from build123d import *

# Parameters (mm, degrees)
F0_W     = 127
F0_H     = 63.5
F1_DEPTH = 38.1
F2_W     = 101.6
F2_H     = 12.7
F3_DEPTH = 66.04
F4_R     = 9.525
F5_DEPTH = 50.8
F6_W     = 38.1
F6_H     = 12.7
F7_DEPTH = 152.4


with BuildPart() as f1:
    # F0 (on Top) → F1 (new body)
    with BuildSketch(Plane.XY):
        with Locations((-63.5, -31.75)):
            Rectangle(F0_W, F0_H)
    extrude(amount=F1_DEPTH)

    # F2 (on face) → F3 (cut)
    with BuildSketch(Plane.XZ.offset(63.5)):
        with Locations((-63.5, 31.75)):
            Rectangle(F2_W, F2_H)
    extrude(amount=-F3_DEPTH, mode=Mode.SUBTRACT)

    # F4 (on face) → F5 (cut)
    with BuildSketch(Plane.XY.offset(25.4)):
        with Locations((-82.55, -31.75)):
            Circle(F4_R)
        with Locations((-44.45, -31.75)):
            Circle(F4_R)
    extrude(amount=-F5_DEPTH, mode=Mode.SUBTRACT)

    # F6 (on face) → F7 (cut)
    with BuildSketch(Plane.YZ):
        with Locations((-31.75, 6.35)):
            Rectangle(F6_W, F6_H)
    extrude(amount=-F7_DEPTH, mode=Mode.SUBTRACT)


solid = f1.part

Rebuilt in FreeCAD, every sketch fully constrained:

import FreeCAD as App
import Part
import Sketcher
Q = App.Units.Quantity


def add_polygon(sketch, points):
    """Adds a closed chain of lines whose ends are joined by coincident constraints."""
    first, n = sketch.GeometryCount, len(points)
    for a, b in zip(points, points[1:] + points[:1]):
        sketch.addGeometry(Part.LineSegment(App.Vector(*a, 0), App.Vector(*b, 0)), False)
    for i in range(n):
        sketch.addConstraint(Sketcher.Constraint("Coincident", first + i, 2, first + (i + 1) % n, 1))

doc = App.newDocument("Part")
body = doc.addObject("PartDesign::Body", "Body")

# Sketch on XY plane
sketch1 = body.newObject("Sketcher::SketchObject", "Sketch")
sketch1.AttachmentSupport = (doc.getObject("XY_Plane"), [""])
sketch1.MapMode = "FlatFace"
add_polygon(sketch1, [(-127, 0), (-127, -64), (0, -64), (0, 0)])  # lines 0-3
sketch1.addConstraint([
    Sketcher.Constraint("Vertical", 0),
    Sketcher.Constraint("Horizontal", 1),
    Sketcher.Constraint("Vertical", 2),
    Sketcher.Constraint("Horizontal", 3),
    Sketcher.Constraint("Coincident", 2, 2, -1, 1),
    Sketcher.Constraint("DistanceX", 1, 1, 1, 2, Q("5 in")),
    Sketcher.Constraint("DistanceY", 0, 2, 0, 1, Q("2.5 in")),
])
pad1 = body.newObject("PartDesign::Pad", "Pad")
pad1.Profile = sketch1
pad1.Length = Q("1.5 in")

# Sketch on XZ plane
sketch2 = body.newObject("Sketcher::SketchObject", "Sketch001")
sketch2.AttachmentSupport = (doc.getObject("XZ_Plane"), [""])
sketch2.MapMode = "FlatFace"
sketch2.AttachmentOffset = App.Placement(App.Vector(0, 0, 2.5 * 25.4), App.Rotation())
add_polygon(sketch2, [(-114, 38), (-114, 25), (-13, 25), (-13, 38)])  # lines 0-3
sketch2.addConstraint([
    Sketcher.Constraint("Vertical", 0),
    Sketcher.Constraint("Horizontal", 1),
    Sketcher.Constraint("Vertical", 2),
    Sketcher.Constraint("Horizontal", 3),
    Sketcher.Constraint("DistanceX", 1, 1, 1, 2, Q("4 in")),
    Sketcher.Constraint("DistanceY", 0, 2, 0, 1, Q("0.5 in")),
    Sketcher.Constraint("DistanceY", -1, 1, 0, 2, Q("1 in")),
    Sketcher.Constraint("DistanceX", 0, 2, -1, 1, Q("4.5 in")),
])
pocket1 = body.newObject("PartDesign::Pocket", "Pocket")
pocket1.Profile = sketch2
pocket1.Length = Q("2.6 in")

# Sketch on XY plane
sketch3 = body.newObject("Sketcher::SketchObject", "Sketch002")
sketch3.AttachmentSupport = (doc.getObject("XY_Plane"), [""])
sketch3.MapMode = "FlatFace"
sketch3.AttachmentOffset = App.Placement(App.Vector(0, 0, 1 * 25.4), App.Rotation())
sketch3.addGeometry([
    Part.Circle(App.Vector(-83, -32, 0), App.Vector(0, 0, 1), 10),
    Part.Circle(App.Vector(-44, -32, 0), App.Vector(0, 0, 1), 10),
], False)
sketch3.addConstraint([
    Sketcher.Constraint("Equal", 0, 1),
    Sketcher.Constraint("Horizontal", 0, 3, 1, 3),
    Sketcher.Constraint("Diameter", 0, Q("0.75 in")),
    Sketcher.Constraint("DistanceX", 0, 3, 1, 3, Q("1.5 in")),
    Sketcher.Constraint("DistanceX", 0, 3, -1, 1, Q("3.25 in")),
    Sketcher.Constraint("DistanceY", 0, 3, -1, 1, Q("1.25 in")),
])
pocket2 = body.newObject("PartDesign::Pocket", "Pocket001")
pocket2.Profile = sketch3
pocket2.Length = Q("2 in")

# Sketch on YZ plane
sketch4 = body.newObject("Sketcher::SketchObject", "Sketch003")
sketch4.AttachmentSupport = (doc.getObject("YZ_Plane"), [""])
sketch4.MapMode = "FlatFace"
add_polygon(sketch4, [(-51, 13), (-51, 0), (-13, 0), (-13, 13)])  # lines 0-3
sketch4.addConstraint([
    Sketcher.Constraint("Vertical", 0),
    Sketcher.Constraint("Horizontal", 1),
    Sketcher.Constraint("Vertical", 2),
    Sketcher.Constraint("Horizontal", 3),
    Sketcher.Constraint("PointOnObject", 0, 2, -1),
    Sketcher.Constraint("DistanceX", 1, 1, 1, 2, Q("1.5 in")),
    Sketcher.Constraint("DistanceY", 0, 2, 0, 1, Q("0.5 in")),
    Sketcher.Constraint("DistanceX", 0, 2, -1, 1, Q("2 in")),
])
pocket3 = body.newObject("PartDesign::Pocket", "Pocket002")
pocket3.Profile = sketch4
pocket3.Length = Q("6 in")

doc.recompute()
